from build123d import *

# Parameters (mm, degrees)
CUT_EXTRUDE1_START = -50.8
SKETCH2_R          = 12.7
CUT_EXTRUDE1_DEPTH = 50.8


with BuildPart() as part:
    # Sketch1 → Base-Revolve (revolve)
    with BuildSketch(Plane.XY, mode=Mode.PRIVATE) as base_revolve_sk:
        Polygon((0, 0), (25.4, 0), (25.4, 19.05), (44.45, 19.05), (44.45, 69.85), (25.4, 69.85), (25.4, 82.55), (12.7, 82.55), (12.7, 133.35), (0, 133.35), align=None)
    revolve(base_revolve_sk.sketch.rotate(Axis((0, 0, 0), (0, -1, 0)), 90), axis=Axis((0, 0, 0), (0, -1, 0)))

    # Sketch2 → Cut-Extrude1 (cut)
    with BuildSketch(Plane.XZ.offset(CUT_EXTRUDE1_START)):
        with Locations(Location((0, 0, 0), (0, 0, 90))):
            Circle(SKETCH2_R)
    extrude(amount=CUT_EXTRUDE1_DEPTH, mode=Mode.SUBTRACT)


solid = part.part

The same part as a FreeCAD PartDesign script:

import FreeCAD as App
import Part
import Sketcher

V = App.Vector
Q = App.Units.Quantity


def add_polygon(sketch, points):
    """Adds a closed chain of lines whose ends are joined by coincident constraints."""
    first, n = sketch.GeometryCount, len(points)
    for a, b in zip(points, points[1:] + points[:1]):
        sketch.addGeometry(Part.LineSegment(App.Vector(*a, 0), App.Vector(*b, 0)), False)
    for i in range(n):
        sketch.addConstraint(Sketcher.Constraint("Coincident", first + i, 2, first + (i + 1) % n, 1))

doc = App.newDocument("Part")
body = doc.addObject("PartDesign::Body", "Body")

# Sketch on XY plane
sketch1 = body.newObject("Sketcher::SketchObject", "Sketch")
sketch1.AttachmentSupport = (doc.getObject("XY_Plane"), [""])
sketch1.MapMode = "FlatFace"
add_polygon(sketch1, [(0, 0), (25, 0), (25, 19), (44, 19), (44, 70), (25, 70), (25, 83), (13, 83), (13, 133), (0, 133)])  # lines 0-9
sketch1.addConstraint([
    Sketcher.Constraint("Horizontal", 0),
    Sketcher.Constraint("Vertical", 1),
    Sketcher.Constraint("Horizontal", 2),
    Sketcher.Constraint("Vertical", 3),
    Sketcher.Constraint("Horizontal", 4),
    Sketcher.Constraint("Vertical", 5),
    Sketcher.Constraint("Horizontal", 6),
    Sketcher.Constraint("Vertical", 7),
    Sketcher.Constraint("Horizontal", 8),
    Sketcher.Constraint("Vertical", 9),
    Sketcher.Constraint("Coincident", 9, 2, -1, 1),
    Sketcher.Constraint("Vertical", 1, 2, 4, 2),
    Sketcher.Constraint("Equal", 6, 8),
    Sketcher.Constraint("Equal", 4, 1),
    Sketcher.Constraint("Equal", 8, 5),
    Sketcher.Constraint("Equal", 3, 7),
    Sketcher.Constraint("DistanceX", 0, 1, 0, 2, Q("1 in")),
    Sketcher.Constraint("DistanceY", 3, 1, 3, 2, Q("2 in")),
    Sketcher.Constraint("DistanceX", 2, 1, 2, 2, Q("0.75 in")),
])
revolution = body.newObject("PartDesign::Revolution", "Revolution")
revolution.Profile = sketch1
revolution.ReferenceAxis = (sketch1, ["V_Axis"])
revolution.Angle = 360

# Sketch on XZ plane
sketch2 = body.newObject("Sketcher::SketchObject", "Sketch001")
sketch2.AttachmentSupport = (doc.getObject("XZ_Plane"), [""])
sketch2.MapMode = "FlatFace"
sketch2.AttachmentOffset = App.Placement(V(0, 0, -2 * 25.4), App.Rotation())
sketch2.addGeometry(Part.Circle(V(0, 0, 0), V(0, 0, 1), 13), False)
sketch2.addConstraint([
    Sketcher.Constraint("Coincident", 0, 3, -1, 1),
    Sketcher.Constraint("Diameter", 0, Q("1 in")),
])
pocket1 = body.newObject("PartDesign::Pocket", "Pocket")
pocket1.Profile = sketch2
pocket1.Length = Q("2 in")
pocket1.Reversed = True

doc.recompute()
